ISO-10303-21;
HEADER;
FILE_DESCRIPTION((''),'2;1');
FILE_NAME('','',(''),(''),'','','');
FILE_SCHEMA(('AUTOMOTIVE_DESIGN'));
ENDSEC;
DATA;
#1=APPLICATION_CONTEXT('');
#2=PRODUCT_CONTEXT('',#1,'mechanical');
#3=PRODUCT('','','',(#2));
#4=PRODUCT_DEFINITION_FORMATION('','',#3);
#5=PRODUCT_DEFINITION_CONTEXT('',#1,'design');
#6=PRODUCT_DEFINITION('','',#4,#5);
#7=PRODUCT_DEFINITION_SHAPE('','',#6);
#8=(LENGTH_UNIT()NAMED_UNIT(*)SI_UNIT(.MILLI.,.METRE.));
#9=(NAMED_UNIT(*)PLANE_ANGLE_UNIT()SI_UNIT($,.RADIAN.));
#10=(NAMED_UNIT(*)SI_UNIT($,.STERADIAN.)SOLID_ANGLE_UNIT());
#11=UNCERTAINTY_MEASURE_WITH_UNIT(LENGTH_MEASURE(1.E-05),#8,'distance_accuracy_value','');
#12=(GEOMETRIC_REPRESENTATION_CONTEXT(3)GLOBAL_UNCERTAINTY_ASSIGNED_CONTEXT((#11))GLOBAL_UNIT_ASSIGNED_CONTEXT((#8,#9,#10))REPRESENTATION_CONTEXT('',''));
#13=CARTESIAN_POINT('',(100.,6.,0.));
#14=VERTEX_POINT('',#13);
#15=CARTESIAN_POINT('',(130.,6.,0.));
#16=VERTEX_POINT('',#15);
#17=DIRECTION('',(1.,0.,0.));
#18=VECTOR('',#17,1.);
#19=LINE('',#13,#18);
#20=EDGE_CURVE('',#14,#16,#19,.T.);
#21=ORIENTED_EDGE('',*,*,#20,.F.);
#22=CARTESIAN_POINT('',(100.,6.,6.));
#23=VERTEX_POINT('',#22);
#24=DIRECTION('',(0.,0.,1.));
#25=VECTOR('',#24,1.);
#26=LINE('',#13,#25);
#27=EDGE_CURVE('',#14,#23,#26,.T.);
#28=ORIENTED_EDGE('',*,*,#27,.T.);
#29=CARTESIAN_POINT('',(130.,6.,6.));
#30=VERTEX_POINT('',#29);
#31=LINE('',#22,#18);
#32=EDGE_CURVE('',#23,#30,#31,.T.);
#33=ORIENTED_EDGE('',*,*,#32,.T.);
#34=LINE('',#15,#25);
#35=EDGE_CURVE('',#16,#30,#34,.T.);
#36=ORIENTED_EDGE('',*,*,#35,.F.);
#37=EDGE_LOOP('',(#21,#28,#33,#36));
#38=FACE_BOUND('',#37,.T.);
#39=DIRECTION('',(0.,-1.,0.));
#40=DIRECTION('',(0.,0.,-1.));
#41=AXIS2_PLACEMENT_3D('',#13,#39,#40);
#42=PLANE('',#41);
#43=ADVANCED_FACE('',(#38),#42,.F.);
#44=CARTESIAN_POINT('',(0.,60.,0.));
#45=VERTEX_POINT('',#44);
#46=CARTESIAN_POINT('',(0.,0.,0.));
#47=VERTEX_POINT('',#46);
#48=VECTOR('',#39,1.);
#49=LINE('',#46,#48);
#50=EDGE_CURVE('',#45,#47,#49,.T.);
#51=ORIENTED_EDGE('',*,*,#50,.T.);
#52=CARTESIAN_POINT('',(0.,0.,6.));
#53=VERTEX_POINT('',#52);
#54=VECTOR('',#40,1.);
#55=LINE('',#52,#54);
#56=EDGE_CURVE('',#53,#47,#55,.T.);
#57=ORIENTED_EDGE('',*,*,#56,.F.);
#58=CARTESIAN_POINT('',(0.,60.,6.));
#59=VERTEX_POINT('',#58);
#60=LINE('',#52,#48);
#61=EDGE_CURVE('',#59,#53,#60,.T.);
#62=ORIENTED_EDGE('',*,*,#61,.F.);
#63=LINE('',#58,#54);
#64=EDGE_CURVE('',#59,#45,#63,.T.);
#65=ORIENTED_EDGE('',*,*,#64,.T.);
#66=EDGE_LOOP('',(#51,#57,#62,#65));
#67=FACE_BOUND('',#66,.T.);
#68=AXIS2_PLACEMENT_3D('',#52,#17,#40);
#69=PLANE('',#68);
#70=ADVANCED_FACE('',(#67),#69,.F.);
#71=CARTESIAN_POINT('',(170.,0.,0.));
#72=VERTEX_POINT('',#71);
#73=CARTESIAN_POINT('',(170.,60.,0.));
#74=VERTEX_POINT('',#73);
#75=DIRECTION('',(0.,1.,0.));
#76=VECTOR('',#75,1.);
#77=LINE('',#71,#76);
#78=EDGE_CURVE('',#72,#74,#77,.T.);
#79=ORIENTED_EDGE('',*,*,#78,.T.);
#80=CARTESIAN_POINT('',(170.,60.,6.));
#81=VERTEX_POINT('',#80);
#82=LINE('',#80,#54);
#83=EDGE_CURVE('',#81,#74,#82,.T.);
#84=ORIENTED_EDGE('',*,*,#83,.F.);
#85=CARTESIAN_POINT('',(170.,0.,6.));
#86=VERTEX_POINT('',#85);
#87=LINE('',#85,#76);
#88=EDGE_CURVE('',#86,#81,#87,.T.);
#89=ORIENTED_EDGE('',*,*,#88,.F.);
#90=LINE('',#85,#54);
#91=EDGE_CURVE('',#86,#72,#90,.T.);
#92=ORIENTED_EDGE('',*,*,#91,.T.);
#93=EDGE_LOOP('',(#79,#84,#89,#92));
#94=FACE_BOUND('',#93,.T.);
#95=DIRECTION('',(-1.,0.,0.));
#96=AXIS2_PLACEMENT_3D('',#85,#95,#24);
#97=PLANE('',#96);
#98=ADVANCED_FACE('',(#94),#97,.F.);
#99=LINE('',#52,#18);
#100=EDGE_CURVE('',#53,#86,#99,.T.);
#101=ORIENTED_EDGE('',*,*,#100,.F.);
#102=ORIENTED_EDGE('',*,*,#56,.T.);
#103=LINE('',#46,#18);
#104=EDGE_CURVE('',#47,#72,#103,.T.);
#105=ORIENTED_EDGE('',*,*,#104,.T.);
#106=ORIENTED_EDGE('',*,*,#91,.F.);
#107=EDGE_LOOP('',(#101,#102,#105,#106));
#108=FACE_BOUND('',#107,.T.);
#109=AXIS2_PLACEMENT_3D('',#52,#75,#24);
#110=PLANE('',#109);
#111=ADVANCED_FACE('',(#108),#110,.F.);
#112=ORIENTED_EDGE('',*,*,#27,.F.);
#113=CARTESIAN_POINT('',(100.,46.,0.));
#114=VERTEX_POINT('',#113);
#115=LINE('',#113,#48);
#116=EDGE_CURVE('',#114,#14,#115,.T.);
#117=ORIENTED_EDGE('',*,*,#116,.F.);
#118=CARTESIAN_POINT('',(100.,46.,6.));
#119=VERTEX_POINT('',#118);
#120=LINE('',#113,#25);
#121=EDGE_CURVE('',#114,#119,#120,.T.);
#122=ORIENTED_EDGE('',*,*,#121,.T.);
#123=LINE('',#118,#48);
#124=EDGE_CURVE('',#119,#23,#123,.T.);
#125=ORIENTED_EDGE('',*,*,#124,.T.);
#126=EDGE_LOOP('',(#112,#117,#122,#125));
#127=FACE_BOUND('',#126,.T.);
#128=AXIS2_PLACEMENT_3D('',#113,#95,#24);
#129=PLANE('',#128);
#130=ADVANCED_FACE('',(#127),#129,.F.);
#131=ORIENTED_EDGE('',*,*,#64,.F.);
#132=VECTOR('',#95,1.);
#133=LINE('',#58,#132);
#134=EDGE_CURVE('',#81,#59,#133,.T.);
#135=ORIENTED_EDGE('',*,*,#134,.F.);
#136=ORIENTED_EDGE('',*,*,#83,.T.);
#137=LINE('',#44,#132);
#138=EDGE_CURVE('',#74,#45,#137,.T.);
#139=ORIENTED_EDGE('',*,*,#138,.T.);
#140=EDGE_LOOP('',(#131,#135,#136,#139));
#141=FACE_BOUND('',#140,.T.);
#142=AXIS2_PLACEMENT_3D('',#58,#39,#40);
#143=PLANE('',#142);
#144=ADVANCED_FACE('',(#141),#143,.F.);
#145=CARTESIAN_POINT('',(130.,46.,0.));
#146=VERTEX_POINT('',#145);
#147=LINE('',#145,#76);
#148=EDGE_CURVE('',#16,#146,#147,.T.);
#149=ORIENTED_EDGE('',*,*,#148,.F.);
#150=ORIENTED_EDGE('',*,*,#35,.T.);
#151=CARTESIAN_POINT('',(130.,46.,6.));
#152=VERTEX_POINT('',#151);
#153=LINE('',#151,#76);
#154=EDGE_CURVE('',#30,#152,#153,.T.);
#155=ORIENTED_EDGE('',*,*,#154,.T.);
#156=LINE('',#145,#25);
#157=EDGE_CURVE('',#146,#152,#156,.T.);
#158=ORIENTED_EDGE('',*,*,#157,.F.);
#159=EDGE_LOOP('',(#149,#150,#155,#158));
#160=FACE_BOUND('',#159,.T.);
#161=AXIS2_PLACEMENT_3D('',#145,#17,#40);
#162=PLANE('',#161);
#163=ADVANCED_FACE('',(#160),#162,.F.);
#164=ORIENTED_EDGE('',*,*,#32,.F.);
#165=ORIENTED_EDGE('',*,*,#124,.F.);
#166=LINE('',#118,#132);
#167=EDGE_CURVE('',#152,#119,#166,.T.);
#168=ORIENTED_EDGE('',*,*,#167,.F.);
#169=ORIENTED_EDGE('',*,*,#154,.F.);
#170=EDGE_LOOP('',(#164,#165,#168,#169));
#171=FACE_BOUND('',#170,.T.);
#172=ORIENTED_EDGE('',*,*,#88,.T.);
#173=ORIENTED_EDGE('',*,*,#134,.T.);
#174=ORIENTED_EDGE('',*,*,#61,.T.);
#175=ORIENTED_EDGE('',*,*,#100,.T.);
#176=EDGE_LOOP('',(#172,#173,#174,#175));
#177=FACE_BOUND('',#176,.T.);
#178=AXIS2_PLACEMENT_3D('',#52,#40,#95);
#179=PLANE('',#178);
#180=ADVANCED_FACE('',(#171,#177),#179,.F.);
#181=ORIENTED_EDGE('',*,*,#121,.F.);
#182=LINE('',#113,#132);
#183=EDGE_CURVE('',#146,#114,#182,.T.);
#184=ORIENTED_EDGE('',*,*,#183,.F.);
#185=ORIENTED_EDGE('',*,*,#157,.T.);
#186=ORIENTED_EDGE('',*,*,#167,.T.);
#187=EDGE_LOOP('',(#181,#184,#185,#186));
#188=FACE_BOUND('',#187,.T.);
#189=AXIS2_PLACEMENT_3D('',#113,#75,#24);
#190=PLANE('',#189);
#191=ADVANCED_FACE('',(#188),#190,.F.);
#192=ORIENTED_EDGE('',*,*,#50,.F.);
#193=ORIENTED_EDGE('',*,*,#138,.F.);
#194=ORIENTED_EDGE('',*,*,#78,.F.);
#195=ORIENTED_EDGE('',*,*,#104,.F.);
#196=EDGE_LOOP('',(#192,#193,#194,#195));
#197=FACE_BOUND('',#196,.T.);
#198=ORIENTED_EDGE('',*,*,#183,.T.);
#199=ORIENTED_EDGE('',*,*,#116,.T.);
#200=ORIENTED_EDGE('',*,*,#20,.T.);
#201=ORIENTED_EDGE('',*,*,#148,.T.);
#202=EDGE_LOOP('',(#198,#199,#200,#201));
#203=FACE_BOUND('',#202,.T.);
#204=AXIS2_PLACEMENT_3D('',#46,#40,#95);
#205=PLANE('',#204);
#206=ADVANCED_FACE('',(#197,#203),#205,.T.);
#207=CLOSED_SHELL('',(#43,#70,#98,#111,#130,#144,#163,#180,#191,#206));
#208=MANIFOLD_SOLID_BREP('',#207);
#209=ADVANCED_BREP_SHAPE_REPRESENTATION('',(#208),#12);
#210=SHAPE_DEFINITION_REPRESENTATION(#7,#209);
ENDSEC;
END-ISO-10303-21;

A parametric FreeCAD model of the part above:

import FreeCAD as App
import Part
import Sketcher
from FreeCAD import Vector
Q = App.Units.Quantity

doc = App.newDocument("Part")
body = doc.addObject("PartDesign::Body", "Body")

# Sketch on XY plane
sketch1 = body.newObject("Sketcher::SketchObject", "Sketch")
sketch1.AttachmentSupport = (doc.getObject("XY_Plane"), [""])
sketch1.MapMode = "FlatFace"
sketch1.addGeometry([
    Part.LineSegment(Vector(0, 60, 0), Vector(0, 0, 0)),
    Part.LineSegment(Vector(0, 0, 0), Vector(170, 0, 0)),
    Part.LineSegment(Vector(170, 0, 0), Vector(170, 60, 0)),
    Part.LineSegment(Vector(170, 60, 0), Vector(0, 60, 0)),
], False)
sketch1.addConstraint([
    Sketcher.Constraint("Coincident", 0, 2, 1, 1),
    Sketcher.Constraint("Coincident", 1, 2, 2, 1),
    Sketcher.Constraint("Coincident", 2, 2, 3, 1),
    Sketcher.Constraint("Coincident", 3, 2, 0, 1),
    Sketcher.Constraint("Vertical", 0),
    Sketcher.Constraint("Horizontal", 1),
    Sketcher.Constraint("Vertical", 2),
    Sketcher.Constraint("Horizontal", 3),
    Sketcher.Constraint("Coincident", 0, 2, -1, 1),
    Sketcher.Constraint("DistanceX", 1, 1, 1, 2, Q("170 mm")),
    Sketcher.Constraint("DistanceY", 0, 2, 0, 1, Q("60 mm")),
])
pad1 = body.newObject("PartDesign::Pad", "Pad")
pad1.Profile = sketch1
pad1.Length = 6

# Sketch on XY plane
sketch2 = body.newObject("Sketcher::SketchObject", "Sketch001")
sketch2.AttachmentSupport = (doc.getObject("XY_Plane"), [""])
sketch2.MapMode = "FlatFace"
sketch2.AttachmentOffset = App.Placement(Vector(0, 0, 6), App.Rotation())
sketch2.addGeometry([
    Part.LineSegment(Vector(100, 46, 0), Vector(100, 6, 0)),
    Part.LineSegment(Vector(100, 6, 0), Vector(130, 6, 0)),
    Part.LineSegment(Vector(130, 6, 0), Vector(130, 46, 0)),
    Part.LineSegment(Vector(130, 46, 0), Vector(100, 46, 0)),
], False)
sketch2.addConstraint([
    Sketcher.Constraint("Coincident", 0, 2, 1, 1),
    Sketcher.Constraint("Coincident", 1, 2, 2, 1),
    Sketcher.Constraint("Coincident", 2, 2, 3, 1),
    Sketcher.Constraint("Coincident", 3, 2, 0, 1),
    Sketcher.Constraint("Vertical", 0),
    Sketcher.Constraint("Horizontal", 1),
    Sketcher.Constraint("Vertical", 2),
    Sketcher.Constraint("Horizontal", 3),
    Sketcher.Constraint("DistanceX", 1, 1, 1, 2, Q("30 mm")),
    Sketcher.Constraint("DistanceY", 0, 2, 0, 1, Q("40 mm")),
    Sketcher.Constraint("DistanceX", -1, 1, 0, 2, Q("100 mm")),
    Sketcher.Constraint("DistanceY", -1, 1, 0, 2, Q("6 mm")),
])
pocket1 = body.newObject("PartDesign::Pocket", "Pocket")
pocket1.Profile = sketch2
pocket1.Type = "ThroughAll"

doc.recompute()
